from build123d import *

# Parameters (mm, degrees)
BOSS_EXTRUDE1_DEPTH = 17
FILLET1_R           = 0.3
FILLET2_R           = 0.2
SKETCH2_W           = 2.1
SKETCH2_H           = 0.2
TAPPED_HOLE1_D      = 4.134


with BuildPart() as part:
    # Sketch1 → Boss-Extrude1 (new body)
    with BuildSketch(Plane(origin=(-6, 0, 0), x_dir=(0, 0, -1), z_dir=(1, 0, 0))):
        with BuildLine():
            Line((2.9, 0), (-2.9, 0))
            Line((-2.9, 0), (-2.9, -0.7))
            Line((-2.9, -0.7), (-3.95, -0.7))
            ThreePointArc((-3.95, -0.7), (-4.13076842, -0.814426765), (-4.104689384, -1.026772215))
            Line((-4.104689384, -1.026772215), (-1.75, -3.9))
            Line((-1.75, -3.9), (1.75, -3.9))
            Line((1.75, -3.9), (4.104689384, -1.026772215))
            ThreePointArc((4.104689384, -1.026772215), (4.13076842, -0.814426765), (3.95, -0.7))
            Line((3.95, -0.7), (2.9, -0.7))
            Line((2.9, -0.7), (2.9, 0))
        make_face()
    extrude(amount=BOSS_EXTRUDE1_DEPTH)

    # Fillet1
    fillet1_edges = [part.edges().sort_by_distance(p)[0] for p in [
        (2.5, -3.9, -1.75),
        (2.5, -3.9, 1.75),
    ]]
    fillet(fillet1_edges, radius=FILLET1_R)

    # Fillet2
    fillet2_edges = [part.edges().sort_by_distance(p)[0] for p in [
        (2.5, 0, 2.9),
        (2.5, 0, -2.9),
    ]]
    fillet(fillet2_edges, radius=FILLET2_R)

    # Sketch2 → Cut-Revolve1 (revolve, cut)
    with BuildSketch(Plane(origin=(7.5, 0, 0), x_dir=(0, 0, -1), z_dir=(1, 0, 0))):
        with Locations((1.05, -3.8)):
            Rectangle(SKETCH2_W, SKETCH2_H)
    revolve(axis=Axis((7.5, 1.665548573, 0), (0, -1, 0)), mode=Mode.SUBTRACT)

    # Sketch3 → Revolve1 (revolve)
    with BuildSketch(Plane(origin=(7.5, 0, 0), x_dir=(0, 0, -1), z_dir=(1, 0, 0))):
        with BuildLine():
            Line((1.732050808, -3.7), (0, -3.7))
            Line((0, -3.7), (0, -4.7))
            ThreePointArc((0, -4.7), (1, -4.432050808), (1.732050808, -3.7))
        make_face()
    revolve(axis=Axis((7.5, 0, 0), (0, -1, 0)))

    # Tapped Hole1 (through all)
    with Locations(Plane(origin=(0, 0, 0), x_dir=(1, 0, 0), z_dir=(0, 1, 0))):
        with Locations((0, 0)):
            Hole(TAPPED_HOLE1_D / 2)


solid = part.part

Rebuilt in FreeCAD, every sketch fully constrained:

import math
import FreeCAD as App
import Part
import Sketcher

V = App.Vector
Q = App.Units.Quantity


def edges_at(feature, points):
    """Names of the edges that pass closest to the given points."""
    edges = feature.Shape.Edges
    near = lambda p: min(range(len(edges)), key=lambda i: edges[i].distToShape(Part.Vertex(*p))[0])
    return sorted({f"Edge{near(p) + 1}" for p in points})


def add_polygon(sketch, points):
    """Adds a closed chain of lines whose ends are joined by coincident constraints."""
    first, n = sketch.GeometryCount, len(points)
    for a, b in zip(points, points[1:] + points[:1]):
        sketch.addGeometry(Part.LineSegment(App.Vector(*a, 0), App.Vector(*b, 0)), False)
    for i in range(n):
        sketch.addConstraint(Sketcher.Constraint("Coincident", first + i, 2, first + (i + 1) % n, 1))

doc = App.newDocument("Part")
body = doc.addObject("PartDesign::Body", "Body")

# Sketch on YZ plane
sketch1 = doc.addObject("Sketcher::SketchObject", "Sketch")
body.addObject(sketch1)
sketch1.AttachmentSupport = (doc.YZ_Plane, [""])
sketch1.MapMode = "FlatFace"
sketch1.AttachmentOffset = App.Placement(V(0, 0, -6), App.Rotation())
sketch1.addGeometry([
    Part.LineSegment(V(0, -2.9, 0), V(0, 2.9, 0)),  # 0
    Part.LineSegment(V(0, 2.9, 0), V(-0.7, 2.9, 0)),  # 1
    Part.LineSegment(V(-0.7, 2.9, 0), V(-0.7, 3.95, 0)),  # 2
    Part.ArcOfCircle(Part.Circle(V(-0.9, 3.95, 0), V(0, 0, 1), 0.2), math.radians(0), math.radians(129)),  # 3
    Part.LineSegment(V(-1.03, 4.1, 0), V(-3.9, 1.75, 0)),  # 4
    Part.LineSegment(V(-3.9, 1.75, 0), V(-3.9, -1.75, 0)),  # 5
    Part.LineSegment(V(-3.9, -1.75, 0), V(-1.03, -4.1, 0)),  # 6
    Part.ArcOfCircle(Part.Circle(V(-0.9, -3.95, 0), V(0, 0, 1), 0.2), math.radians(-129), math.radians(0)),  # 7
    Part.LineSegment(V(-0.7, -3.95, 0), V(-0.7, -2.9, 0)),  # 8
    Part.LineSegment(V(-0.7, -2.9, 0), V(0, -2.9, 0)),  # 9
], False)
sketch1.addConstraint([
    Sketcher.Constraint("Coincident", 0, 2, 1, 1),
    Sketcher.Constraint("Coincident", 1, 2, 2, 1),
    Sketcher.Constraint("Tangent", 2, 2, 3, 1),
    Sketcher.Constraint("Tangent", 3, 2, 4, 1),
    Sketcher.Constraint("Coincident", 4, 2, 5, 1),
    Sketcher.Constraint("Coincident", 5, 2, 6, 1),
    Sketcher.Constraint("Tangent", 6, 2, 7, 1),
    Sketcher.Constraint("Tangent", 7, 2, 8, 1),
    Sketcher.Constraint("Coincident", 8, 2, 9, 1),
    Sketcher.Constraint("Coincident", 9, 2, 0, 1),
    Sketcher.Constraint("Vertical", 0),
    Sketcher.Constraint("Horizontal", 1),
    Sketcher.Constraint("Vertical", 2),
    Sketcher.Constraint("Vertical", 5),
    Sketcher.Constraint("Vertical", 8),
    Sketcher.Constraint("Horizontal", 9),
    Sketcher.Constraint("Equal", 3, 7),
    Sketcher.Constraint("Symmetric", 0, 2, 9, 2, -1, 1),
    Sketcher.Constraint("Symmetric", 3, 3, 7, 3, -1),
    Sketcher.Constraint("Vertical", 3, 2, 6, 2),
    Sketcher.Constraint("Radius", 3, Q("0.2 mm")),
    Sketcher.Constraint("DistanceX", 1, 2, 1, 1, Q("0.7 mm")),
    Sketcher.Constraint("DistanceY", 0, 1, 0, 2, Q("5.8 mm")),
    Sketcher.Constraint("DistanceY", 5, 2, 5, 1, Q("3.5 mm")),
    Sketcher.Constraint("DistanceX", 4, 2, 3, 3, Q("3 mm")),
    Sketcher.Constraint("DistanceY", 2, 1, 2, 2, Q("1.05 mm")),
])
pad1 = doc.addObject("PartDesign::Pad", "Pad")
body.addObject(pad1)
pad1.Profile = sketch1
pad1.Length = 17
doc.recompute()

fillet = doc.addObject("PartDesign::Fillet", "Fillet")
body.addObject(fillet)
fillet.Base = (pad1, edges_at(pad1, [(2.5, -3.9, -1.75), (2.5, -3.9, 1.75)]))
fillet.Radius = 0.3
doc.recompute()

fillet2 = doc.addObject("PartDesign::Fillet", "Fillet001")
body.addObject(fillet2)
fillet2.Base = (fillet, edges_at(fillet, [(2.5, 0, 2.9), (2.5, 0, -2.9)]))
fillet2.Radius = 0.2

# Sketch on YZ plane
sketch2 = doc.addObject("Sketcher::SketchObject", "Sketch001")
body.addObject(sketch2)
sketch2.AttachmentSupport = (doc.YZ_Plane, [""])
sketch2.MapMode = "FlatFace"
sketch2.AttachmentOffset = App.Placement(V(0, 0, 7.5), App.Rotation())
add_polygon(sketch2, [(-3.7, 0), (-3.9, 0), (-3.9, -2.1), (-3.7, -2.1)])  # lines 0-3
sketch2.addConstraint([
    Sketcher.Constraint("Horizontal", 0),
    Sketcher.Constraint("Vertical", 1),
    Sketcher.Constraint("Horizontal", 2),
    Sketcher.Constraint("Vertical", 3),
    Sketcher.Constraint("PointOnObject", 0, 2, -1),
    Sketcher.Constraint("DistanceX", 0, 2, 0, 1, Q("0.2 mm")),
    Sketcher.Constraint("DistanceY", 1, 2, 1, 1, Q("2.1 mm")),
    Sketcher.Constraint("DistanceX", 0, 2, -1, 1, Q("3.9 mm")),
])
groove = doc.addObject("PartDesign::Groove", "Groove")
body.addObject(groove)
groove.Profile = sketch2
groove.ReferenceAxis = (sketch2, ["H_Axis"])
groove.Angle = 360

# Sketch on YZ plane
sketch3 = doc.addObject("Sketcher::SketchObject", "Sketch002")
body.addObject(sketch3)
sketch3.AttachmentSupport = (doc.YZ_Plane, [""])
sketch3.MapMode = "FlatFace"
sketch3.AttachmentOffset = App.Placement(V(0, 0, 7.5), App.Rotation())
sketch3.addGeometry([
    Part.LineSegment(V(-3.7, -1.7, 0), V(-3.7, 0, 0)),
    Part.LineSegment(V(-3.7, 0, 0), V(-4.7, 0, 0)),
    Part.ArcOfCircle(Part.Circle(V(-2.7, 0, 0), V(0, 0, 1), 2), math.radians(180), math.radians(240)),
], False)
sketch3.addConstraint([
    Sketcher.Constraint("Coincident", 0, 2, 1, 1),
    Sketcher.Constraint("Coincident", 1, 2, 2, 1),
    Sketcher.Constraint("Coincident", 2, 2, 0, 1),
    Sketcher.Constraint("Vertical", 0),
    Sketcher.Constraint("Horizontal", 1),
    Sketcher.Constraint("PointOnObject", 2, 3, -1),
    Sketcher.Constraint("PointOnObject", 0, 2, -1),
    Sketcher.Constraint("Radius", 2, Q("2 mm")),
    Sketcher.Constraint("DistanceX", 1, 2, 1, 1, Q("1 mm")),
    Sketcher.Constraint("DistanceX", 2, 3, -1, 1, Q("2.7 mm")),
])
revolution = doc.addObject("PartDesign::Revolution", "Revolution")
body.addObject(revolution)
revolution.Profile = sketch3
revolution.ReferenceAxis = (sketch3, ["H_Axis"])
revolution.Angle = 360

# Sketch on XZ plane
sketch4 = doc.addObject("Sketcher::SketchObject", "Sketch003")
body.addObject(sketch4)
sketch4.AttachmentSupport = (doc.XZ_Plane, [""])
sketch4.MapMode = "FlatFace"
sketch4.addGeometry(Part.Circle(V(0, 0, 0), V(0, 0, 1), 2.1), False)
sketch4.addConstraint([
    Sketcher.Constraint("Coincident", 0, 3, -1, 1),
    Sketcher.Constraint("Diameter", 0, Q("4.134 mm")),
])
doc.recompute()
hole = doc.addObject("PartDesign::Hole", "Hole")
body.addObject(hole)
hole.Profile = sketch4
hole.ThreadType = "None"
hole.Diameter = 4.134
hole.DepthType = "ThroughAll"
hole.Reversed = True

doc.recompute()
